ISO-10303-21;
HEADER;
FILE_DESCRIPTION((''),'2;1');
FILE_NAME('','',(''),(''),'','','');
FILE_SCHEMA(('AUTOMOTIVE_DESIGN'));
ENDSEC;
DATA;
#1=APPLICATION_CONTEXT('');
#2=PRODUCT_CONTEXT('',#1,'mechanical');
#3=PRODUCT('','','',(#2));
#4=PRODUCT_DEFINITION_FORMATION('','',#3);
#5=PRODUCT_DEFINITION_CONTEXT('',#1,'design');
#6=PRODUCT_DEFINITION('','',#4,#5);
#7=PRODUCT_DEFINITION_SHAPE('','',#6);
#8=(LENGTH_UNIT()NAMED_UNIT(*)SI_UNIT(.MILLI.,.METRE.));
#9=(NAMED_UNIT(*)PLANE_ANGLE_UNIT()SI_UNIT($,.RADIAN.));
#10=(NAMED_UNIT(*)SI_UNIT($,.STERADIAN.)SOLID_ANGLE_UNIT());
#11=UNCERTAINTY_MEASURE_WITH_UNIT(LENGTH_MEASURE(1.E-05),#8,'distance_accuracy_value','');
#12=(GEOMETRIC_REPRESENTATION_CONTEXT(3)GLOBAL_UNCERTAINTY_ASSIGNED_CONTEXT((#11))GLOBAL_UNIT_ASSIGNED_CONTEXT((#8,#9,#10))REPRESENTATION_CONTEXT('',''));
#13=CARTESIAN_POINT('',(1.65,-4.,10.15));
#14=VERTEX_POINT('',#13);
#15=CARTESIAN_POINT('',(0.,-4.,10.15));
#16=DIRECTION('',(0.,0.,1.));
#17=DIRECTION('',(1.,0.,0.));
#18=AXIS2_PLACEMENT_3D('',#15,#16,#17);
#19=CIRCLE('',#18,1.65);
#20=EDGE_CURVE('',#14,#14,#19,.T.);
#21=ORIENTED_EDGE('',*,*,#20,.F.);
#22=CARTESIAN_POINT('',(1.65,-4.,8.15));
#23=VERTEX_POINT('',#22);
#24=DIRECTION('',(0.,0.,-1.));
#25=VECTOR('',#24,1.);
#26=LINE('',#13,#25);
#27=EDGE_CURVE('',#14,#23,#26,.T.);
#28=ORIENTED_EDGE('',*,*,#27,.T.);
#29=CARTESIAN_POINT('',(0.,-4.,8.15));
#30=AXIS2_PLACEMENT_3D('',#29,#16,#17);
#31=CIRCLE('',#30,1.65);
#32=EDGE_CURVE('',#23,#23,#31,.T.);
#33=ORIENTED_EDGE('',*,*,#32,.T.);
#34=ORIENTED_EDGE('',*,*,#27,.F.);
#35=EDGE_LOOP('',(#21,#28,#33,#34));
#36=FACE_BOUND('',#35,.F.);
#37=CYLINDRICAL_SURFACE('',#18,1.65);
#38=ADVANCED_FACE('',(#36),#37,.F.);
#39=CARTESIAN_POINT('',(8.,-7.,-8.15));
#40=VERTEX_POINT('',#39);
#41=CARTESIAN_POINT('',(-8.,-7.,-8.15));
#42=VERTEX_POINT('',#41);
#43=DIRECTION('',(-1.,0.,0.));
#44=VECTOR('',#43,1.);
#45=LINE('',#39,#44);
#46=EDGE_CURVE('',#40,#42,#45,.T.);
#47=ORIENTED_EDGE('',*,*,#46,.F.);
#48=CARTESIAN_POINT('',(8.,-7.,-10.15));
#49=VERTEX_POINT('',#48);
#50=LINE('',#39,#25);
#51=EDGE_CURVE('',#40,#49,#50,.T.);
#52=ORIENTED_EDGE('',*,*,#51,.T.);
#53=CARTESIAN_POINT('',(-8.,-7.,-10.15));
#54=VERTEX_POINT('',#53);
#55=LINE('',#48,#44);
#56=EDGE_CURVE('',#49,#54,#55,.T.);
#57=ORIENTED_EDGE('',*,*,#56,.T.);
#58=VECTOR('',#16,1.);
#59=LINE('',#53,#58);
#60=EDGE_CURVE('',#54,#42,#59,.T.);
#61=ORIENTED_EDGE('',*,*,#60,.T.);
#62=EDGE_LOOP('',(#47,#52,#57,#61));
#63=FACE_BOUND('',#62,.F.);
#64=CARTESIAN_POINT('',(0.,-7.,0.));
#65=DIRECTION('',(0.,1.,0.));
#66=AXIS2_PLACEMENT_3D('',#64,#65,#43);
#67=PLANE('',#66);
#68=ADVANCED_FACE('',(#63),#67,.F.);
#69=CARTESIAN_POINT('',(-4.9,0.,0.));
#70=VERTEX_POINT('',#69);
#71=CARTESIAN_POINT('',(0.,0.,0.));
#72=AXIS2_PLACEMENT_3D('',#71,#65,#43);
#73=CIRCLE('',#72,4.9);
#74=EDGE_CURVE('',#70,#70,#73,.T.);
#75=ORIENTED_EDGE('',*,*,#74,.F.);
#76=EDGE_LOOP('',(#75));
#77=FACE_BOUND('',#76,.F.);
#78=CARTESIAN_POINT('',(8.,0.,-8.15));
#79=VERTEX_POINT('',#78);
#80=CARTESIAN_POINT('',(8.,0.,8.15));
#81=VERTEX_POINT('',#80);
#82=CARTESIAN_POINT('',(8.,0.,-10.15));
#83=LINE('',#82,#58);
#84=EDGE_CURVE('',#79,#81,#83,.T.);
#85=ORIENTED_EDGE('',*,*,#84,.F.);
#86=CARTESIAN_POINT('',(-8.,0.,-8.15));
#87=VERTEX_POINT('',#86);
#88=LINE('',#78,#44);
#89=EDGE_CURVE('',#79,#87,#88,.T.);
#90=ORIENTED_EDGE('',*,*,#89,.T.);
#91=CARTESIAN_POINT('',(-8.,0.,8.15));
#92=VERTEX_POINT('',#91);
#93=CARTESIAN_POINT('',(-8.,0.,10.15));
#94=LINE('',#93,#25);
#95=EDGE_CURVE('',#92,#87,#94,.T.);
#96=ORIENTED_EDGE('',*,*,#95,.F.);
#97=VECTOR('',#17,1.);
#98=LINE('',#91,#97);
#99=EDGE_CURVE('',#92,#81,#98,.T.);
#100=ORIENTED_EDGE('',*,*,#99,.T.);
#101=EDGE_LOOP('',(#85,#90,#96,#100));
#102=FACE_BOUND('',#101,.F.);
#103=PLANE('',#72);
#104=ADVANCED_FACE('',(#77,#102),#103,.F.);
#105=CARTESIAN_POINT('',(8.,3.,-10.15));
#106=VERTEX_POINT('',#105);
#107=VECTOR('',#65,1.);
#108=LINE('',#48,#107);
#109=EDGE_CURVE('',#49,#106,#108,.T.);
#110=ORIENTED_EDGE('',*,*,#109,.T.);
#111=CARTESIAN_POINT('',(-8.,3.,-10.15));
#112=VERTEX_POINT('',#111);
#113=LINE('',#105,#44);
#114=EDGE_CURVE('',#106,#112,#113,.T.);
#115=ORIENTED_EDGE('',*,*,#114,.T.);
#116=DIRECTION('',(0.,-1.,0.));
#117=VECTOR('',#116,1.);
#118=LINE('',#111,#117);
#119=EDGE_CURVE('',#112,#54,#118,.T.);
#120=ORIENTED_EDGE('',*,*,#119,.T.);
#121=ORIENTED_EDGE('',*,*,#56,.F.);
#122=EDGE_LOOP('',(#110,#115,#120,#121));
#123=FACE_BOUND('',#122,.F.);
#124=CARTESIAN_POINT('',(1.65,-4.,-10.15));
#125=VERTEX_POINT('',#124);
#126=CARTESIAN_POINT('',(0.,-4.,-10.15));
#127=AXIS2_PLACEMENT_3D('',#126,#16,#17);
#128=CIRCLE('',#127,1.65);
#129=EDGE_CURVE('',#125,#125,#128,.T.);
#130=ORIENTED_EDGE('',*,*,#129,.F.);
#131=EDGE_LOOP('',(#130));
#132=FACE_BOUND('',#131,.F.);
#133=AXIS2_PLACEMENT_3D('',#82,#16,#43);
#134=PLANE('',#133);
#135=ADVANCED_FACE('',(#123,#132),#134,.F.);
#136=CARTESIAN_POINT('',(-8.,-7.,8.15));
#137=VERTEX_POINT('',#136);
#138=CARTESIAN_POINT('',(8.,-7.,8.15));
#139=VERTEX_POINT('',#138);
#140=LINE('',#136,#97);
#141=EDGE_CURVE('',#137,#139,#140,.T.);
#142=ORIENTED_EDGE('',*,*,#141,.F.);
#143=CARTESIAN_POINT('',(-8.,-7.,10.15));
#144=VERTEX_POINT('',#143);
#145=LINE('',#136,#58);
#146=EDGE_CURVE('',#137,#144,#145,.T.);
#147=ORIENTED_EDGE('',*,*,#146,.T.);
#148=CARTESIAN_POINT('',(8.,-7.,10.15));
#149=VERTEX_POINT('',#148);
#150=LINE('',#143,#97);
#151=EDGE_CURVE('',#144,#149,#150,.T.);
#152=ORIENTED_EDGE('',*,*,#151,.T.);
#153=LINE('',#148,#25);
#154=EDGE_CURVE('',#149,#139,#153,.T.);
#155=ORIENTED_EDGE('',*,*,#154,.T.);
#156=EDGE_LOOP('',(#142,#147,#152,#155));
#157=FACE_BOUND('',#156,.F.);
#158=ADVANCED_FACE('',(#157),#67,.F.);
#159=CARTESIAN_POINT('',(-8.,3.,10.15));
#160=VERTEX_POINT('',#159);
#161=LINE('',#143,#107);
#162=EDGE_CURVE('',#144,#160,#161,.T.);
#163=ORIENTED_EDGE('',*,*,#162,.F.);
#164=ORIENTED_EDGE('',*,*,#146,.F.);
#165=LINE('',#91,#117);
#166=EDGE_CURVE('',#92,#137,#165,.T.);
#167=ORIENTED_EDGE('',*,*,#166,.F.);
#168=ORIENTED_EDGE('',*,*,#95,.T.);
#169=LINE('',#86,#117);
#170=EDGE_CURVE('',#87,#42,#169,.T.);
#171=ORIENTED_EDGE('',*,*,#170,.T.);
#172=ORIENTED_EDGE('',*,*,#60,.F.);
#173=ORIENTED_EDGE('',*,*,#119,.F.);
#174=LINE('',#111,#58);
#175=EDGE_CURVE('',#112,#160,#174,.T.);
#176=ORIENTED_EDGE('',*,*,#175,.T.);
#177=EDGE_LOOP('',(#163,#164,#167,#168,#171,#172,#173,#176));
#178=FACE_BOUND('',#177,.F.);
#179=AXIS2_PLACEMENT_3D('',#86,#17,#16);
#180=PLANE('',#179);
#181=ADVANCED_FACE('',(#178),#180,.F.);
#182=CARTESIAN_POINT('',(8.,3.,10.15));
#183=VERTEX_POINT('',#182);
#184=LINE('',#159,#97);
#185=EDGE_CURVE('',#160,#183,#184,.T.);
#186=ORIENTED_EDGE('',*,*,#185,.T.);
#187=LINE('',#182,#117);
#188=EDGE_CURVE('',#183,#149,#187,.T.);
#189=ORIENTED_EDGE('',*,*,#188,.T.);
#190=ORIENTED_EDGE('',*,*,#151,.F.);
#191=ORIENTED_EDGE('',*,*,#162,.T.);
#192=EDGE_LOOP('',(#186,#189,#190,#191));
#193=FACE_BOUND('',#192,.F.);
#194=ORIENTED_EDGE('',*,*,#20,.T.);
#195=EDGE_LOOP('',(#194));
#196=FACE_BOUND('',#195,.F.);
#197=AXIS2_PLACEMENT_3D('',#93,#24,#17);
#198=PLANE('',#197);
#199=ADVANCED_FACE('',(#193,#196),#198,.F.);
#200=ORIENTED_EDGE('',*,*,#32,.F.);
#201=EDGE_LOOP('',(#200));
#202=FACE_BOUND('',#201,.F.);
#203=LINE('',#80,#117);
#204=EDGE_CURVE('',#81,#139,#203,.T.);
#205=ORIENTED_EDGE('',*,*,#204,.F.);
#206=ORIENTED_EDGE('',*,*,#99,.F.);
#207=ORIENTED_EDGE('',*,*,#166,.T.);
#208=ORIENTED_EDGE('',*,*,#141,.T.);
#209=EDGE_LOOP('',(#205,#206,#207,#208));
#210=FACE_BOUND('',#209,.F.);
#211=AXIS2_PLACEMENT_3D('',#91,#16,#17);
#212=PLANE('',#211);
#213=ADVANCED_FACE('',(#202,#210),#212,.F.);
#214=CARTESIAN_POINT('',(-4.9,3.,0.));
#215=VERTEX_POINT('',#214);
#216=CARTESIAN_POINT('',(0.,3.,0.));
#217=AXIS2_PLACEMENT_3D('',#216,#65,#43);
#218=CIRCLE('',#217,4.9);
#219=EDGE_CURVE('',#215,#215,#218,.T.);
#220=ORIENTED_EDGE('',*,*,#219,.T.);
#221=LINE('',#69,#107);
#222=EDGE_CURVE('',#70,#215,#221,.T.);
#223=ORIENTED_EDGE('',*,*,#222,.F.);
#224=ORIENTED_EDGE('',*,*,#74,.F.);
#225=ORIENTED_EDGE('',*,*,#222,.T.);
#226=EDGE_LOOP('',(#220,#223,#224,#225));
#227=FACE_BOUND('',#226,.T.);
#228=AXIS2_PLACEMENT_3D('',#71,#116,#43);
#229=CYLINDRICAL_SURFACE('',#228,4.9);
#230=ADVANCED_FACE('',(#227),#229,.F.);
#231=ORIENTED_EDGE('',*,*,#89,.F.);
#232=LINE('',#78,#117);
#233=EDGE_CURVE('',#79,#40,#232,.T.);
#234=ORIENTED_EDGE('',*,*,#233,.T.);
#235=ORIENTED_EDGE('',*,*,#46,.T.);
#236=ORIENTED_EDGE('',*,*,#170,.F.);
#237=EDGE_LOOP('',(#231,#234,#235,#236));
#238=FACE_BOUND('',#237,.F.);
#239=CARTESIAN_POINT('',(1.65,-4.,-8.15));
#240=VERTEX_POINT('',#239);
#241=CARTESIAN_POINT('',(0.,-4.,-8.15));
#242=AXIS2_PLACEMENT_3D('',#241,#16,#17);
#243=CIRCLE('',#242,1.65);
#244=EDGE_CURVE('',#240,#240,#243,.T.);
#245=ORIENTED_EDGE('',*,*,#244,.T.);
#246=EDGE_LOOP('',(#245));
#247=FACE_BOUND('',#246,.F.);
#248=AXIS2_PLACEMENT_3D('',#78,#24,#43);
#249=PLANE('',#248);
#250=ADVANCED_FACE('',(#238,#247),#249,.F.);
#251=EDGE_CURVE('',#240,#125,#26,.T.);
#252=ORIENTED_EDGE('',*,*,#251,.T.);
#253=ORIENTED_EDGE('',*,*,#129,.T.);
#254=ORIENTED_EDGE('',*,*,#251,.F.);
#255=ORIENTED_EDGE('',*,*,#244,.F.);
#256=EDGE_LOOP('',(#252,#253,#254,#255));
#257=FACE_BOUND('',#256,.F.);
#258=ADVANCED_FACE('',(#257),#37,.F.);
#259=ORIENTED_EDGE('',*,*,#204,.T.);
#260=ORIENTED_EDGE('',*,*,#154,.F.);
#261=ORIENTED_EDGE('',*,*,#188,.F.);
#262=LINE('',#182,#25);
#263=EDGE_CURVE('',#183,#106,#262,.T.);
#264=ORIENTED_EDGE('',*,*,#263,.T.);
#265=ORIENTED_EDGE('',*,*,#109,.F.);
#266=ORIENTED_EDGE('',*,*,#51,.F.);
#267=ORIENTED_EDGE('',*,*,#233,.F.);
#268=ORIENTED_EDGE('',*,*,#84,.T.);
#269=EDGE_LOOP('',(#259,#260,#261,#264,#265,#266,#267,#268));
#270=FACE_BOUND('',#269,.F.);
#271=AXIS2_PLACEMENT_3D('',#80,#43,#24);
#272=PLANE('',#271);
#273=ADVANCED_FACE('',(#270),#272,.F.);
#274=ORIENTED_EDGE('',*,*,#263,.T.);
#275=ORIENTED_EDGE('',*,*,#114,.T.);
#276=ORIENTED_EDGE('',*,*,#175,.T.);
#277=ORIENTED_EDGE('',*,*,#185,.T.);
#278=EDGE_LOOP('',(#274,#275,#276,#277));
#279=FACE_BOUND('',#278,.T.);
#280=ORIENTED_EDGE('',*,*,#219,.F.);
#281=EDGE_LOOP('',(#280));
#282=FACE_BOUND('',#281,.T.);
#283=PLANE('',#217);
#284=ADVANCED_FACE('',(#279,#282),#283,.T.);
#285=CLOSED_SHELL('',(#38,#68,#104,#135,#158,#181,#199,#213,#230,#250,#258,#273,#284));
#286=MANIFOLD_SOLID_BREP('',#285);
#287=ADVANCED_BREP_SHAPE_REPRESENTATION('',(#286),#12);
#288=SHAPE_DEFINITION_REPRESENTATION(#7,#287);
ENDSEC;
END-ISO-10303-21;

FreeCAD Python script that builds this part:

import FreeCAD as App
import Part
import Sketcher

V = App.Vector
Q = App.Units.Quantity


def add_polygon(sketch, points):
    """Adds a closed chain of lines whose ends are joined by coincident constraints."""
    first, n = sketch.GeometryCount, len(points)
    for a, b in zip(points, points[1:] + points[:1]):
        sketch.addGeometry(Part.LineSegment(App.Vector(*a, 0), App.Vector(*b, 0)), False)
    for i in range(n):
        sketch.addConstraint(Sketcher.Constraint("Coincident", first + i, 2, first + (i + 1) % n, 1))

doc = App.newDocument("Part")
params = doc.addObject("Spreadsheet::Sheet", "Params")
for row, (alias, value) in enumerate([
    ("sketch1_diameter", "9.8 mm"),
    ("sketch1_width", "16 mm"),
    ("sketch1_height", "20.3 mm"),
    ("pad1_length", "3 mm"),
    ("sketch2_width", "16 mm"),
    ("sketch2_height", "2 mm"),
    ("pad2_length", "7 mm"),
    ("sketch3_diameter", "3.3 mm"),
], start=1):
    params.set(f"A{row}", alias)
    params.set(f"B{row}", "=" + value)
    params.setAlias(f"B{row}", alias)

body = doc.addObject("PartDesign::Body", "Body")

sketch1 = doc.addObject("Sketcher::SketchObject", "Sketch")
body.addObject(sketch1)
sketch1.AttachmentSupport = (doc.XZ_Plane, [""])
sketch1.MapMode = "FlatFace"
add_polygon(sketch1, [(-8, 10.2), (8, 10.2), (8, -10.2), (-8, -10.2)])
sketch1.addGeometry(Part.Circle(V(0, 0, 0), V(0, 0, 1), 4.9), False)
sketch1.addConstraint(Sketcher.Constraint("Horizontal", 0))
sketch1.addConstraint(Sketcher.Constraint("Vertical", 1))
sketch1.addConstraint(Sketcher.Constraint("Horizontal", 2))
sketch1.addConstraint(Sketcher.Constraint("Vertical", 3))
sketch1.addConstraint(Sketcher.Constraint("Coincident", 4, 3, -1, 1))
sketch1.addConstraint(Sketcher.Constraint("Symmetric", 0, 2, 2, 2, -1, 1))
sketch1.addConstraint(Sketcher.Constraint("Diameter", 4, Q("9.8 mm")))
sketch1.addConstraint(Sketcher.Constraint("DistanceX", 0, 1, 0, 2, Q("16 mm")))
sketch1.addConstraint(Sketcher.Constraint("DistanceY", 1, 2, 1, 1, Q("20.3 mm")))
sketch1.setExpression("Constraints[10]", "Params.sketch1_diameter")
sketch1.setExpression("Constraints[11]", "Params.sketch1_width")
sketch1.setExpression("Constraints[12]", "Params.sketch1_height")
pad1 = doc.addObject("PartDesign::Pad", "Pad")
body.addObject(pad1)
pad1.Profile = sketch1
pad1.setExpression("Length", "Params.pad1_length")
pad1.Reversed = True

sketch2 = doc.addObject("Sketcher::SketchObject", "Sketch001")
body.addObject(sketch2)
sketch2.AttachmentSupport = (doc.XZ_Plane, [""])
sketch2.MapMode = "FlatFace"
add_polygon(sketch2, [(8, 8.2), (-8, 8.2), (-8, 10.2), (8, 10.2)])
add_polygon(sketch2, [(-8, -10.2), (-8, -8.2), (8, -8.2), (8, -10.2)])
sketch2.addConstraint(Sketcher.Constraint("Horizontal", 0))
sketch2.addConstraint(Sketcher.Constraint("Vertical", 1))
sketch2.addConstraint(Sketcher.Constraint("Horizontal", 2))
sketch2.addConstraint(Sketcher.Constraint("Vertical", 3))
sketch2.addConstraint(Sketcher.Constraint("Vertical", 4))
sketch2.addConstraint(Sketcher.Constraint("Horizontal", 5))
sketch2.addConstraint(Sketcher.Constraint("Vertical", 6))
sketch2.addConstraint(Sketcher.Constraint("Horizontal", 7))
sketch2.addConstraint(Sketcher.Constraint("Symmetric", 3, 2, 4, 2, -1, 1))
sketch2.addConstraint(Sketcher.Constraint("Symmetric", 1, 2, 6, 2, -1, 1))
sketch2.addConstraint(Sketcher.Constraint("Vertical", 1, 2, 4, 2))
sketch2.addConstraint(Sketcher.Constraint("DistanceX", 0, 2, 0, 1, Q("16 mm")))
sketch2.addConstraint(Sketcher.Constraint("DistanceY", 1, 1, 1, 2, Q("2 mm")))
sketch2.addConstraint(Sketcher.Constraint("DistanceY", 4, 2, 0, 2, Q("16.3 mm")))
sketch2.setExpression("Constraints[19]", "Params.sketch2_width")
sketch2.setExpression("Constraints[20]", "Params.sketch2_height")
pad2 = doc.addObject("PartDesign::Pad", "Pad001")
body.addObject(pad2)
pad2.Profile = sketch2
pad2.setExpression("Length", "Params.pad2_length")

sketch3 = doc.addObject("Sketcher::SketchObject", "Sketch002")
body.addObject(sketch3)
sketch3.AttachmentSupport = (doc.XY_Plane, [""])
sketch3.MapMode = "FlatFace"
sketch3.AttachmentOffset = App.Placement(V(0, 0, 10.15), App.Rotation())
sketch3.addGeometry(Part.Circle(V(0, -4, 0), V(0, 0, 1), 1.6), False)
sketch3.addConstraint(Sketcher.Constraint("PointOnObject", 0, 3, -2))
sketch3.addConstraint(Sketcher.Constraint("Diameter", 0, Q("3.3 mm")))
sketch3.addConstraint(Sketcher.Constraint("DistanceY", 0, 3, -1, 1, Q("4 mm")))
sketch3.setExpression("Constraints[1]", "Params.sketch3_diameter")
pocket1 = doc.addObject("PartDesign::Pocket", "Pocket")
body.addObject(pocket1)
pocket1.Profile = sketch3
pocket1.Type = "ThroughAll"

doc.recompute()
